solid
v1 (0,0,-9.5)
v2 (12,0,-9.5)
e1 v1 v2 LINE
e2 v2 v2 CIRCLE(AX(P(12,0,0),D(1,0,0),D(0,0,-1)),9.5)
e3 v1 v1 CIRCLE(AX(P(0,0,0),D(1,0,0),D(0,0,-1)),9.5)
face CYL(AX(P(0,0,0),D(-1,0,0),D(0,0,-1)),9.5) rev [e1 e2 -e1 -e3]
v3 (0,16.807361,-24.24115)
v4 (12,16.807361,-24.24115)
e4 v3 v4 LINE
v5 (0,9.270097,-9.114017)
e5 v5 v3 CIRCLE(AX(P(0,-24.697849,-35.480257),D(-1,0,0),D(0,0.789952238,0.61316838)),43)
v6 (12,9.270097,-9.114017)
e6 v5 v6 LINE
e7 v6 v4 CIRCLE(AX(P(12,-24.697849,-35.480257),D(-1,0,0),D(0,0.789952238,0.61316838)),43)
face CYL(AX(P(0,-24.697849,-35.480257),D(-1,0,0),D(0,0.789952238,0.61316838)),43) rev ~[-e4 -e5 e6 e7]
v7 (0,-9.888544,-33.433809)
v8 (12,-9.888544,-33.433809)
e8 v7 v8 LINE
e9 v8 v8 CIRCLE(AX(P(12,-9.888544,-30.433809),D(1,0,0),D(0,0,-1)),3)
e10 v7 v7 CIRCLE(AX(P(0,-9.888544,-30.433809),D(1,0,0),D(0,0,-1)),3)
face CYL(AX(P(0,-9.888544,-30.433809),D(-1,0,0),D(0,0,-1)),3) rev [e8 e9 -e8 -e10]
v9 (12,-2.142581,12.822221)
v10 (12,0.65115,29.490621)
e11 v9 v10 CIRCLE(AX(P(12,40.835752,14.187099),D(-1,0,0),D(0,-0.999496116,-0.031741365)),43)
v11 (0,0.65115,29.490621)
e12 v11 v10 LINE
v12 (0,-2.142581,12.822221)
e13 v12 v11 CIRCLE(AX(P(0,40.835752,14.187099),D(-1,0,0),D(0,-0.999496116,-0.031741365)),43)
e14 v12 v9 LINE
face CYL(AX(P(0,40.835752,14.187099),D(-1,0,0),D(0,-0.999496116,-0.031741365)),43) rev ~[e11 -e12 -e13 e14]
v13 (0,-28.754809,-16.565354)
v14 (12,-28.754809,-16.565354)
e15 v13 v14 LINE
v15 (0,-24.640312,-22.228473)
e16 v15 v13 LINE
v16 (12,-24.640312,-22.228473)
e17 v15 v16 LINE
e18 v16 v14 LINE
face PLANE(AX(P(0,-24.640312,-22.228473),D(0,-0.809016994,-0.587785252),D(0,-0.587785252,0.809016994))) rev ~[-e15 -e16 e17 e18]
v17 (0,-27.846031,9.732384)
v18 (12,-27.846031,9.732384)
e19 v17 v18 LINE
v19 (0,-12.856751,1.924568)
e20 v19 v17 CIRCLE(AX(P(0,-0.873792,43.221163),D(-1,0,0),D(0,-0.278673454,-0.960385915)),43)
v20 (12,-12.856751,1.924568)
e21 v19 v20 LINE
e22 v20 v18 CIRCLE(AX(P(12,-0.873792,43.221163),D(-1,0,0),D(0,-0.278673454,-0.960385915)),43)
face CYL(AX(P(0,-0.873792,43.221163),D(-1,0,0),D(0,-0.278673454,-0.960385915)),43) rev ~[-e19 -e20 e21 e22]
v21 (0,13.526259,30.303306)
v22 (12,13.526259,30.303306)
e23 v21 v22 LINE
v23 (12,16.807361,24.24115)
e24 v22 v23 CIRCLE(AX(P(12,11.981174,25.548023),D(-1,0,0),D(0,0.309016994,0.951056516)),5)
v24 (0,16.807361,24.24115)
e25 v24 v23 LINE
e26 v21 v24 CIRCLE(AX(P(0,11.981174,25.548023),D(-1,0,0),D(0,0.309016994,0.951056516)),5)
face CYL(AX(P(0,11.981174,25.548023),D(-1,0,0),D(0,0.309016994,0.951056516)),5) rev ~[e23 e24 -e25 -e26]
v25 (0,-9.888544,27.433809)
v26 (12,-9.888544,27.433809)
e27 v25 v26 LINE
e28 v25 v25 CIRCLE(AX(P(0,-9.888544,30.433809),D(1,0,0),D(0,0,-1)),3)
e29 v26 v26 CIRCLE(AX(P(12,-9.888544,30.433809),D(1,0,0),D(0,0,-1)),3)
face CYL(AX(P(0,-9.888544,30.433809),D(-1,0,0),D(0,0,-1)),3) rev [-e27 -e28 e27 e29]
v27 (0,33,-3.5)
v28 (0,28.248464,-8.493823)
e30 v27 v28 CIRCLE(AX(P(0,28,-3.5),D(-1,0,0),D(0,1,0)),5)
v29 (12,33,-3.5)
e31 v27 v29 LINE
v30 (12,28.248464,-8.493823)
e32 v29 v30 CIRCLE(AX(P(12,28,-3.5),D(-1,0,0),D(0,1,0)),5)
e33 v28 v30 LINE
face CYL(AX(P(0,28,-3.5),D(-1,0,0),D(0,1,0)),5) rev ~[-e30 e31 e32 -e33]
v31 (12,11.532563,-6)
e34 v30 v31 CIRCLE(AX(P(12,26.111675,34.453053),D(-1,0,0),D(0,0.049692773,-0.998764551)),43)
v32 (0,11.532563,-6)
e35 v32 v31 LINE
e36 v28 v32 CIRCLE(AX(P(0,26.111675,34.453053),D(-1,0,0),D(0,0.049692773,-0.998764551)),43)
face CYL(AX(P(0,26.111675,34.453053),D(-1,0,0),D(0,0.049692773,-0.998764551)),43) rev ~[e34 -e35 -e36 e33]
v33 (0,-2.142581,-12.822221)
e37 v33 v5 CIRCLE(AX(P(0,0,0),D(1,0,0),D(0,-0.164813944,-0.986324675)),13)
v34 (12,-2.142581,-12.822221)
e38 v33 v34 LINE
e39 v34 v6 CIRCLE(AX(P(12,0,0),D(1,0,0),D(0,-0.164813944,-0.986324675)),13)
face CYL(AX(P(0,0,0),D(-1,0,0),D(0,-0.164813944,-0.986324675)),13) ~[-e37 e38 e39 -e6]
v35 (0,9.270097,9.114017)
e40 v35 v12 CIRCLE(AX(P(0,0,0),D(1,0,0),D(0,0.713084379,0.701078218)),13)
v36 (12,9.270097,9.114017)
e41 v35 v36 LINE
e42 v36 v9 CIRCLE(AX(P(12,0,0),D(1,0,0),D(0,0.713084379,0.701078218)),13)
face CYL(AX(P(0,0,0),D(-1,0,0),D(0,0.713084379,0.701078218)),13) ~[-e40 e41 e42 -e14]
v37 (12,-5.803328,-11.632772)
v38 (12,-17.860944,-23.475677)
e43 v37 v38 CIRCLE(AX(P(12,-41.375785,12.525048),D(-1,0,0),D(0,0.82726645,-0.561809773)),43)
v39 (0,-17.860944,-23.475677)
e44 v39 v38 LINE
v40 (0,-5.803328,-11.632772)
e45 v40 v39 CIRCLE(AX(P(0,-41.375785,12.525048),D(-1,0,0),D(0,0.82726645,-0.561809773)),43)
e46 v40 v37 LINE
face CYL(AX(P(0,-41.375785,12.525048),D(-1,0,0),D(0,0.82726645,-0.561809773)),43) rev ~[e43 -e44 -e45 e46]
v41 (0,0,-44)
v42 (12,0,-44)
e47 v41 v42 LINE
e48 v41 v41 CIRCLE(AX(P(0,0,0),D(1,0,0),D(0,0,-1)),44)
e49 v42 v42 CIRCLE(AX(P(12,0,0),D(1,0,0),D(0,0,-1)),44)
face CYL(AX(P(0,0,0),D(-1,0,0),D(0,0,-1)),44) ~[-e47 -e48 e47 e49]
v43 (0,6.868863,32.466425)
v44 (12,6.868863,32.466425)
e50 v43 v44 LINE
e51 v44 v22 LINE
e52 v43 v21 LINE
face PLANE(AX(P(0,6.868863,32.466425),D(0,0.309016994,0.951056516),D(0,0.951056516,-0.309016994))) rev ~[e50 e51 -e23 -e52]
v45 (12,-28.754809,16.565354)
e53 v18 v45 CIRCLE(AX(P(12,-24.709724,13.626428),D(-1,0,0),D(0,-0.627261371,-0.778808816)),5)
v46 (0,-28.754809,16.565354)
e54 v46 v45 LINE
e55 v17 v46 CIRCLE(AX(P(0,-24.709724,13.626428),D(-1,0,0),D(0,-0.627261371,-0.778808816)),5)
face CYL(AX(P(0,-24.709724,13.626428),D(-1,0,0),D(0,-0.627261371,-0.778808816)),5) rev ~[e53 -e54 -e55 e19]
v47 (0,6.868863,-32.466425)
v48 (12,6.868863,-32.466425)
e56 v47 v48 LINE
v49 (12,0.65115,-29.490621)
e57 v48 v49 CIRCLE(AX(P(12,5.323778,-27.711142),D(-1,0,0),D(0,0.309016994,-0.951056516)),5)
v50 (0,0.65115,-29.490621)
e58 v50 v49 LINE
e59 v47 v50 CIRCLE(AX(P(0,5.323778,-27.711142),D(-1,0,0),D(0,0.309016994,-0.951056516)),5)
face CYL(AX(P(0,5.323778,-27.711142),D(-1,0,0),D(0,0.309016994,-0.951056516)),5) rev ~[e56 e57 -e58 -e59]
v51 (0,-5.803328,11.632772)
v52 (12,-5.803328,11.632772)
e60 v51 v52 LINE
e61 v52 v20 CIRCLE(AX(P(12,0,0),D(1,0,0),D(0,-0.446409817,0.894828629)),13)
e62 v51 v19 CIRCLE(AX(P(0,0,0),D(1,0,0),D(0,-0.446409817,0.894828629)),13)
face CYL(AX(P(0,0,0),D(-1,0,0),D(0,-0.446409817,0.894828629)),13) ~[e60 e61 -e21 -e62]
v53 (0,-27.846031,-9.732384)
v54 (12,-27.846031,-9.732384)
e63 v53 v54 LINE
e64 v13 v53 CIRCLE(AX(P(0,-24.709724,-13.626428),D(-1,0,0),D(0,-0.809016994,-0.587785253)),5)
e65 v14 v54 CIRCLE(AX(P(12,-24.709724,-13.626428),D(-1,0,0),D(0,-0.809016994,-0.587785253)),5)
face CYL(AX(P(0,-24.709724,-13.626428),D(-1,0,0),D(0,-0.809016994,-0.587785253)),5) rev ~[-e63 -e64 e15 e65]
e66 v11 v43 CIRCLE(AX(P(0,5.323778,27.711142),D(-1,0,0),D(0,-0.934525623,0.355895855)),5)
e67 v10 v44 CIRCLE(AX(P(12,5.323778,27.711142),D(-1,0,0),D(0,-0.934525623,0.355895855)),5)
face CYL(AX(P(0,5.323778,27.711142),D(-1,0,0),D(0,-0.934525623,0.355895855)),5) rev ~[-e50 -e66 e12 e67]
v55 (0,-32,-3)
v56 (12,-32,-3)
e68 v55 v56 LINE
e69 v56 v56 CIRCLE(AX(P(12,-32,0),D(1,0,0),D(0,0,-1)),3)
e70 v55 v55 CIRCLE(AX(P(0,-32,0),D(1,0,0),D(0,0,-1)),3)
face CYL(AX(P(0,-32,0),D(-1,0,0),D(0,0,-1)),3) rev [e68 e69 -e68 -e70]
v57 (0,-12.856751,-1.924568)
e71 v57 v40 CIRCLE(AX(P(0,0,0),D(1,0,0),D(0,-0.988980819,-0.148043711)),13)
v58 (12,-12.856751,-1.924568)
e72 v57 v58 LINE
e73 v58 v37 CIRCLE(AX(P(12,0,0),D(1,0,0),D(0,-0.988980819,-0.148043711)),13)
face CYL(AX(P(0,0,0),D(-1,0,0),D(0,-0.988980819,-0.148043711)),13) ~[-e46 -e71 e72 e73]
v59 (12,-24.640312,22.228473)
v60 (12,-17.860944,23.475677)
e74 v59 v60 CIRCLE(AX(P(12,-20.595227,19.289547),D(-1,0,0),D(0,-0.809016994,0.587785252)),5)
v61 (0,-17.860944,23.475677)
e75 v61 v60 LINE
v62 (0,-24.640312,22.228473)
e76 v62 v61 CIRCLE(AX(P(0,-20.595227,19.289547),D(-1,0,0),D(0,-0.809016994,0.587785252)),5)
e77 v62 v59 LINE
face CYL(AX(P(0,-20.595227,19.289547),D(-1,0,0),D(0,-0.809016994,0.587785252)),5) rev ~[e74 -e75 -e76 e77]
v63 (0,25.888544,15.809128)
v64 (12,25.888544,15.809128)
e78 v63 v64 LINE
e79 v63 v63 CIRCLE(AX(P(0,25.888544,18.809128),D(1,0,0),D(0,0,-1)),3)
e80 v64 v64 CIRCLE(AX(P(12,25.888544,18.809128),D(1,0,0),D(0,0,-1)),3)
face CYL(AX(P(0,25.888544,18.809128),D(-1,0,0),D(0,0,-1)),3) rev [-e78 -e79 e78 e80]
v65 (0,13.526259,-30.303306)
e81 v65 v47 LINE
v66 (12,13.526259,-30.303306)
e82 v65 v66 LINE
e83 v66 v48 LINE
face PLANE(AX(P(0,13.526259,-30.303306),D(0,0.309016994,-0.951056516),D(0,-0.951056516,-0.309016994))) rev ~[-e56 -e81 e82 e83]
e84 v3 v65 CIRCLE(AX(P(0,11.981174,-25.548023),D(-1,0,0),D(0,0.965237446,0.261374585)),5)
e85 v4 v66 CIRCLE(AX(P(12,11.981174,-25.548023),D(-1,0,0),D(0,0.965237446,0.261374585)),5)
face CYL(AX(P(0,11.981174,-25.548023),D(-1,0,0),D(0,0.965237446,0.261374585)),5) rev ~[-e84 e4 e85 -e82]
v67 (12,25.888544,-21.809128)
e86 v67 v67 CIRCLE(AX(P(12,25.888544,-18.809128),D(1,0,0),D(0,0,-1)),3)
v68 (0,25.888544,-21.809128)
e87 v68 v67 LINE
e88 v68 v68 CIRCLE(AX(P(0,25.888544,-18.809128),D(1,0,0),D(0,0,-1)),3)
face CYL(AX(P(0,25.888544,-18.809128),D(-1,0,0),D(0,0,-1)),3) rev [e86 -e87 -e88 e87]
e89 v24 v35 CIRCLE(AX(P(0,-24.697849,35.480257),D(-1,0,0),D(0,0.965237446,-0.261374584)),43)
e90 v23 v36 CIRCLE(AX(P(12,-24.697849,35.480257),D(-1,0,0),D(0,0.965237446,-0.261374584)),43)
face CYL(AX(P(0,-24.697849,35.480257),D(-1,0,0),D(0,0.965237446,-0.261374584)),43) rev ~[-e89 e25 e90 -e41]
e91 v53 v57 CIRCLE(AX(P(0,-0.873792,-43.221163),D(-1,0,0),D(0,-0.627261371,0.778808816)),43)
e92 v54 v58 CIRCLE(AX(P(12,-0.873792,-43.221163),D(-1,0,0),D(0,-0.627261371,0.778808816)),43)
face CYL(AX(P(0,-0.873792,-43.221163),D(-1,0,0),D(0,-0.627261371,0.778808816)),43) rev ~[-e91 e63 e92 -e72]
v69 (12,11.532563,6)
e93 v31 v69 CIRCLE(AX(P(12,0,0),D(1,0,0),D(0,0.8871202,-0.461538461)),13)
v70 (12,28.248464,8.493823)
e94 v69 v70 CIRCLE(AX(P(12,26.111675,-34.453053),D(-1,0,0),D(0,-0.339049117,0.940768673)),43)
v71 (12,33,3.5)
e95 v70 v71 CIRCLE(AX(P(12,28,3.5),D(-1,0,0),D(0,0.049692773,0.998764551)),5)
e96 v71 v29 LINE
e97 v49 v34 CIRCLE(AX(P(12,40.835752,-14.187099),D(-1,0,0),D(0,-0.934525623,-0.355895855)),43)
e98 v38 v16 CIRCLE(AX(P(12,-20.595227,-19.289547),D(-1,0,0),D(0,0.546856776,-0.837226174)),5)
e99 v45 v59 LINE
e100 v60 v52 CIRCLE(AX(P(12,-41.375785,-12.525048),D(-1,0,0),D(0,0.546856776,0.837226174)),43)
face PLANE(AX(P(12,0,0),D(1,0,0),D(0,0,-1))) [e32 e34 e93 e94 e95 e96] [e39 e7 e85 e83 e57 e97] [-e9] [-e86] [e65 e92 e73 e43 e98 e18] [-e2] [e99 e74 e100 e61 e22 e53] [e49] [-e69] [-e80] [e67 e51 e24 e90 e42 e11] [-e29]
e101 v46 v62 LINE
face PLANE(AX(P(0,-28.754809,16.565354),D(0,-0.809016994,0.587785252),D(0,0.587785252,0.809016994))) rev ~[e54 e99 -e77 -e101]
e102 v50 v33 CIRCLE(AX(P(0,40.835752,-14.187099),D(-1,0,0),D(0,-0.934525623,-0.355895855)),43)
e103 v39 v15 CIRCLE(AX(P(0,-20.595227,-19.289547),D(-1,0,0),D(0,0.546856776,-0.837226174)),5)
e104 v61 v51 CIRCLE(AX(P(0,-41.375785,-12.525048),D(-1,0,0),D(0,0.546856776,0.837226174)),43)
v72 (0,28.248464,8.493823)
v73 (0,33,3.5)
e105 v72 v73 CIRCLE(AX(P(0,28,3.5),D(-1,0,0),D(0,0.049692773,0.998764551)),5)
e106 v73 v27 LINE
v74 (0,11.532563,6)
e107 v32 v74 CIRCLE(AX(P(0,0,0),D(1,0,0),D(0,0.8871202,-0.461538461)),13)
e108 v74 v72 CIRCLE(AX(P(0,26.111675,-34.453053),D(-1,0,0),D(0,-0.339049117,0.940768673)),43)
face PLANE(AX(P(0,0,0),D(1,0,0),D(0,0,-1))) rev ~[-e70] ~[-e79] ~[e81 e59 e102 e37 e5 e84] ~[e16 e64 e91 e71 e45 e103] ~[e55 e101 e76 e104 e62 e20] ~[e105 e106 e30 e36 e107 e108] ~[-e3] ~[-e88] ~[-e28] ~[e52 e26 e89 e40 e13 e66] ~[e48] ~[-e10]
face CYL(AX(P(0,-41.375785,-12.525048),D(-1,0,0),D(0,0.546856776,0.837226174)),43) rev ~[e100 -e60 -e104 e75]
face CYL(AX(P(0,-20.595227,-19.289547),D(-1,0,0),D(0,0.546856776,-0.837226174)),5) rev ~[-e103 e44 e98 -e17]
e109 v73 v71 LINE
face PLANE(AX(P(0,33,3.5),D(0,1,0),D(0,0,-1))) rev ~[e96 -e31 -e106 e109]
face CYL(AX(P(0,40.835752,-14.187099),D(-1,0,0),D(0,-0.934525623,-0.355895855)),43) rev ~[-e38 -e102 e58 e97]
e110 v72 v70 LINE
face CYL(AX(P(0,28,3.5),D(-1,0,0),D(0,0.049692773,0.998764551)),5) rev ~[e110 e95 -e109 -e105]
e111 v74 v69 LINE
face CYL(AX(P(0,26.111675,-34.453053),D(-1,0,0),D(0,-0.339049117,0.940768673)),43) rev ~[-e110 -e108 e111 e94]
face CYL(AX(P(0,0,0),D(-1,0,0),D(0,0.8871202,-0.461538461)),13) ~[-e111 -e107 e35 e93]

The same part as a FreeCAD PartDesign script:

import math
import FreeCAD as App
import Part
import Sketcher
Q = App.Units.Quantity

doc = App.newDocument("Part")
body = doc.addObject("PartDesign::Body", "Body")

sketch1 = doc.addObject("Sketcher::SketchObject", "Sketch")
body.addObject(sketch1)
sketch1.AttachmentSupport = (doc.YZ_Plane, [""])
sketch1.MapMode = "FlatFace"
sketch1.addGeometry([
    Part.Circle(App.Vector(0, 0, 0), App.Vector(0, 0, 1), 44),
    Part.Circle(App.Vector(-32, 0, 0), App.Vector(0, 0, 1), 3),
    Part.Circle(App.Vector(-9.888544, 30.433809, 0), App.Vector(0, 0, 1), 3),
    Part.ArcOfCircle(Part.Circle(App.Vector(-24.709724, 13.626428, 0), App.Vector(0, 0, 1), 5), math.radians(144), math.radians(231.151641)),
    Part.LineSegment(App.Vector(-28.754809, 16.565354, 0), App.Vector(-24.640312, 22.228473, 0)),
    Part.ArcOfCircle(Part.Circle(App.Vector(-20.595227, 19.289547, 0), App.Vector(0, 0, 1), 5), math.radians(56.848359), math.radians(144)),
    Part.ArcOfCircle(Part.Circle(App.Vector(-41.375785, -12.525048, 0), App.Vector(0, 0, 1), 43), math.radians(34.181048), math.radians(56.848359)),
    Part.ArcOfCircle(Part.Circle(App.Vector(0, 0, 0), App.Vector(0, 0, 1), 13), math.radians(116.513574), math.radians(171.486426)),
    Part.ArcOfCircle(Part.Circle(App.Vector(-0.873792, 43.221163, 0), App.Vector(0, 0, 1), 43), math.radians(-128.848359), math.radians(-106.181048)),
    Part.ArcOfCircle(Part.Circle(App.Vector(-20.595227, -19.289547, 0), App.Vector(0, 0, 1), 5), math.radians(-144), math.radians(-56.848359)),
    Part.LineSegment(App.Vector(-24.640312, -22.228473, 0), App.Vector(-28.754809, -16.565354, 0)),
    Part.ArcOfCircle(Part.Circle(App.Vector(-24.709724, -13.626428, 0), App.Vector(0, 0, 1), 5), math.radians(128.848359), math.radians(216)),
    Part.ArcOfCircle(Part.Circle(App.Vector(-0.873792, -43.221163, 0), App.Vector(0, 0, 1), 43), math.radians(106.181048), math.radians(128.848359)),
    Part.ArcOfCircle(Part.Circle(App.Vector(0, 0, 0), App.Vector(0, 0, 1), 13), math.radians(-171.486426), math.radians(-116.513574)),
    Part.ArcOfCircle(Part.Circle(App.Vector(-41.375785, 12.525048, 0), App.Vector(0, 0, 1), 43), math.radians(-56.848359), math.radians(-34.181048)),
    Part.Circle(App.Vector(-9.888544, -30.433809, 0), App.Vector(0, 0, 1), 3),
    Part.ArcOfCircle(Part.Circle(App.Vector(5.323778, 27.711142, 0), App.Vector(0, 0, 1), 5), math.radians(72), math.radians(159.151641)),
    Part.LineSegment(App.Vector(6.868863, 32.466425, 0), App.Vector(13.526259, 30.303306, 0)),
    Part.ArcOfCircle(Part.Circle(App.Vector(11.981174, 25.548023, 0), App.Vector(0, 0, 1), 5), math.radians(-15.151641), math.radians(72)),
    Part.ArcOfCircle(Part.Circle(App.Vector(-24.697849, 35.480257, 0), App.Vector(0, 0, 1), 43), math.radians(-37.818952), math.radians(-15.151641)),
    Part.ArcOfCircle(Part.Circle(App.Vector(0, 0, 0), App.Vector(0, 0, 1), 13), math.radians(44.513574), math.radians(99.486426)),
    Part.ArcOfCircle(Part.Circle(App.Vector(40.835752, 14.187099, 0), App.Vector(0, 0, 1), 43), math.radians(159.151641), math.radians(181.818952)),
    Part.Circle(App.Vector(25.888544, 18.809128, 0), App.Vector(0, 0, 1), 3),
    Part.ArcOfCircle(Part.Circle(App.Vector(28, 3.5, 0), App.Vector(0, 0, 1), 5), math.radians(0), math.radians(87.151641)),
    Part.LineSegment(App.Vector(33, 3.5, 0), App.Vector(33, -3.5, 0)),
    Part.ArcOfCircle(Part.Circle(App.Vector(28, -3.5, 0), App.Vector(0, 0, 1), 5), math.radians(-87.151641), math.radians(0)),
    Part.ArcOfCircle(Part.Circle(App.Vector(26.111675, 34.453053, 0), App.Vector(0, 0, 1), 43), math.radians(-109.818952), math.radians(-87.151641)),
    Part.ArcOfCircle(Part.Circle(App.Vector(0, 0, 0), App.Vector(0, 0, 1), 13), math.radians(-27.486426), math.radians(27.486426)),
    Part.ArcOfCircle(Part.Circle(App.Vector(26.111675, -34.453053, 0), App.Vector(0, 0, 1), 43), math.radians(87.151641), math.radians(109.818952)),
    Part.Circle(App.Vector(0, 0, 0), App.Vector(0, 0, 1), 9.5),
    Part.ArcOfCircle(Part.Circle(App.Vector(11.981174, -25.548023, 0), App.Vector(0, 0, 1), 5), math.radians(-72), math.radians(15.151641)),
    Part.LineSegment(App.Vector(13.526259, -30.303306, 0), App.Vector(6.868863, -32.466425, 0)),
    Part.ArcOfCircle(Part.Circle(App.Vector(5.323778, -27.711142, 0), App.Vector(0, 0, 1), 5), math.radians(-159.151641), math.radians(-72)),
    Part.ArcOfCircle(Part.Circle(App.Vector(40.835752, -14.187099, 0), App.Vector(0, 0, 1), 43), math.radians(178.181048), math.radians(200.848359)),
    Part.ArcOfCircle(Part.Circle(App.Vector(0, 0, 0), App.Vector(0, 0, 1), 13), math.radians(-99.486426), math.radians(-44.513574)),
    Part.ArcOfCircle(Part.Circle(App.Vector(-24.697849, -35.480257, 0), App.Vector(0, 0, 1), 43), math.radians(15.151641), math.radians(37.818952)),
    Part.Circle(App.Vector(25.888544, -18.809128, 0), App.Vector(0, 0, 1), 3),
], False)
sketch1.addConstraint([
    Sketcher.Constraint("Tangent", 3, 1, 4, 1),
    Sketcher.Constraint("Tangent", 4, 2, 5, 2),
    Sketcher.Constraint("Tangent", 5, 1, 6, 2),
    Sketcher.Constraint("Coincident", 6, 1, 7, 1),
    Sketcher.Constraint("Coincident", 7, 2, 8, 2),
    Sketcher.Constraint("Tangent", 8, 1, 3, 2),
    Sketcher.Constraint("Tangent", 9, 1, 10, 1),
    Sketcher.Constraint("Tangent", 10, 2, 11, 2),
    Sketcher.Constraint("Tangent", 11, 1, 12, 2),
    Sketcher.Constraint("Coincident", 12, 1, 13, 1),
    Sketcher.Constraint("Coincident", 13, 2, 14, 2),
    Sketcher.Constraint("Tangent", 14, 1, 9, 2),
    Sketcher.Constraint("Tangent", 16, 1, 17, 1),
    Sketcher.Constraint("Tangent", 17, 2, 18, 2),
    Sketcher.Constraint("Tangent", 18, 1, 19, 2),
    Sketcher.Constraint("Coincident", 19, 1, 20, 1),
    Sketcher.Constraint("Coincident", 20, 2, 21, 2),
    Sketcher.Constraint("Tangent", 21, 1, 16, 2),
    Sketcher.Constraint("Tangent", 23, 1, 24, 1),
    Sketcher.Constraint("Tangent", 24, 2, 25, 2),
    Sketcher.Constraint("Tangent", 25, 1, 26, 2),
    Sketcher.Constraint("Coincident", 26, 1, 27, 1),
    Sketcher.Constraint("Coincident", 27, 2, 28, 2),
    Sketcher.Constraint("Tangent", 28, 1, 23, 2),
    Sketcher.Constraint("Tangent", 30, 1, 31, 1),
    Sketcher.Constraint("Tangent", 31, 2, 32, 2),
    Sketcher.Constraint("Tangent", 32, 1, 33, 2),
    Sketcher.Constraint("Coincident", 33, 1, 34, 1),
    Sketcher.Constraint("Coincident", 34, 2, 35, 2),
    Sketcher.Constraint("Tangent", 35, 1, 30, 2),
    Sketcher.Constraint("Vertical", 24),
    Sketcher.Constraint("Coincident", 0, 3, -1, 1),
    Sketcher.Constraint("Coincident", 7, 3, -1, 1),
    Sketcher.Constraint("Coincident", 13, 3, -1, 1),
    Sketcher.Constraint("Coincident", 20, 3, -1, 1),
    Sketcher.Constraint("Coincident", 27, 3, -1, 1),
    Sketcher.Constraint("Coincident", 29, 3, -1, 1),
    Sketcher.Constraint("Coincident", 34, 3, -1, 1),
    Sketcher.Constraint("Equal", 1, 2),
    Sketcher.Constraint("Equal", 3, 5),
    Sketcher.Constraint("Equal", 6, 8),
    Sketcher.Constraint("Equal", 5, 9),
    Sketcher.Constraint("Equal", 9, 11),
    Sketcher.Constraint("Equal", 8, 12),
    Sketcher.Constraint("Equal", 7, 13),
    Sketcher.Constraint("Equal", 12, 14),
    Sketcher.Constraint("Equal", 2, 15),
    Sketcher.Constraint("Equal", 11, 16),
    Sketcher.Constraint("Equal", 16, 18),
    Sketcher.Constraint("Equal", 14, 19),
    Sketcher.Constraint("Equal", 13, 20),
    Sketcher.Constraint("Equal", 19, 21),
    Sketcher.Constraint("Equal", 15, 22),
    Sketcher.Constraint("Equal", 18, 23),
    Sketcher.Constraint("Equal", 23, 25),
    Sketcher.Constraint("Equal", 21, 26),
    Sketcher.Constraint("Equal", 20, 27),
    Sketcher.Constraint("Equal", 26, 28),
    Sketcher.Constraint("Equal", 25, 30),
    Sketcher.Constraint("Equal", 30, 32),
    Sketcher.Constraint("Equal", 28, 33),
    Sketcher.Constraint("Equal", 27, 34),
    Sketcher.Constraint("Equal", 33, 35),
    Sketcher.Constraint("Equal", 22, 36),
    Sketcher.Constraint("Symmetric", 5, 3, 9, 3, -1),
    Sketcher.Constraint("Symmetric", 3, 3, 11, 3, -1),
    Sketcher.Constraint("Symmetric", 2, 3, 15, 3, -1),
    Sketcher.Constraint("Symmetric", 26, 3, 28, 3, -1),
    Sketcher.Constraint("Symmetric", 18, 3, 30, 3, -1),
    Sketcher.Constraint("Symmetric", 16, 3, 32, 3, -1),
    Sketcher.Constraint("Symmetric", 22, 3, 36, 3, -1),
    Sketcher.Constraint("PointOnObject", 1, 3, -1),
    Sketcher.Constraint("Vertical", 8, 3, 12, 3),
    Sketcher.Constraint("Vertical", 6, 3, 14, 3),
    Sketcher.Constraint("Vertical", 21, 3, 33, 3),
    Sketcher.Constraint("Vertical", 19, 3, 35, 3),
    Sketcher.Constraint("Equal", 10, 17),
    Sketcher.Constraint("Diameter", 0, 88.0),
    Sketcher.Constraint("Diameter", 1, 6.0),
    Sketcher.Constraint("Diameter", 29, 19.0),
    Sketcher.Constraint("Radius", 3, 5.0),
    Sketcher.Constraint("Radius", 6, 43.0),
    Sketcher.Constraint("Radius", 7, 13.0),
    Sketcher.Constraint("DistanceY", 24, 2, 24, 1, 7.0),
    Sketcher.Constraint("Angle", 4, Q("54 deg")),
    Sketcher.Constraint("Angle", 17, Q("-18 deg")),
    Sketcher.Constraint("Distance", 4, 7.0),
    Sketcher.Constraint("DistanceX", 1, 3, -1, 1, 32.0),
    Sketcher.Constraint("DistanceX", -1, 1, 23, 3, 28.0),
    Sketcher.Constraint("DistanceY", 26, 1, -1, 1, 6.0),
    Sketcher.Constraint("DistanceY", -1, 1, 21, 3, 14.187099),
    Sketcher.Constraint("DistanceY", -1, 1, 2, 3, 30.433809),
    Sketcher.Constraint("DistanceY", 6, 3, -1, 1, 12.525048),
    Sketcher.Constraint("DistanceX", -1, 1, 16, 3, 5.323778),
    Sketcher.Constraint("DistanceY", -1, 1, 16, 3, 27.711142),
    Sketcher.Constraint("DistanceX", 19, 3, -1, 1, 24.697849),
    Sketcher.Constraint("DistanceY", -1, 1, 22, 3, 18.809128),
    Sketcher.Constraint("DistanceX", 3, 1, -1, 1, 28.754809),
    Sketcher.Constraint("DistanceX", 7, 2, -1, 1, 12.856751),
    Sketcher.Constraint("DistanceX", 11, 1, -1, 1, 27.846031),
    Sketcher.Constraint("DistanceX", 2, 3, -1, 1, 9.888544),
    Sketcher.Constraint("DistanceX", -1, 1, 22, 3, 25.888544),
])
pad1 = doc.addObject("PartDesign::Pad", "Pad")
body.addObject(pad1)
pad1.Profile = sketch1
pad1.Length = 12

doc.recompute()
